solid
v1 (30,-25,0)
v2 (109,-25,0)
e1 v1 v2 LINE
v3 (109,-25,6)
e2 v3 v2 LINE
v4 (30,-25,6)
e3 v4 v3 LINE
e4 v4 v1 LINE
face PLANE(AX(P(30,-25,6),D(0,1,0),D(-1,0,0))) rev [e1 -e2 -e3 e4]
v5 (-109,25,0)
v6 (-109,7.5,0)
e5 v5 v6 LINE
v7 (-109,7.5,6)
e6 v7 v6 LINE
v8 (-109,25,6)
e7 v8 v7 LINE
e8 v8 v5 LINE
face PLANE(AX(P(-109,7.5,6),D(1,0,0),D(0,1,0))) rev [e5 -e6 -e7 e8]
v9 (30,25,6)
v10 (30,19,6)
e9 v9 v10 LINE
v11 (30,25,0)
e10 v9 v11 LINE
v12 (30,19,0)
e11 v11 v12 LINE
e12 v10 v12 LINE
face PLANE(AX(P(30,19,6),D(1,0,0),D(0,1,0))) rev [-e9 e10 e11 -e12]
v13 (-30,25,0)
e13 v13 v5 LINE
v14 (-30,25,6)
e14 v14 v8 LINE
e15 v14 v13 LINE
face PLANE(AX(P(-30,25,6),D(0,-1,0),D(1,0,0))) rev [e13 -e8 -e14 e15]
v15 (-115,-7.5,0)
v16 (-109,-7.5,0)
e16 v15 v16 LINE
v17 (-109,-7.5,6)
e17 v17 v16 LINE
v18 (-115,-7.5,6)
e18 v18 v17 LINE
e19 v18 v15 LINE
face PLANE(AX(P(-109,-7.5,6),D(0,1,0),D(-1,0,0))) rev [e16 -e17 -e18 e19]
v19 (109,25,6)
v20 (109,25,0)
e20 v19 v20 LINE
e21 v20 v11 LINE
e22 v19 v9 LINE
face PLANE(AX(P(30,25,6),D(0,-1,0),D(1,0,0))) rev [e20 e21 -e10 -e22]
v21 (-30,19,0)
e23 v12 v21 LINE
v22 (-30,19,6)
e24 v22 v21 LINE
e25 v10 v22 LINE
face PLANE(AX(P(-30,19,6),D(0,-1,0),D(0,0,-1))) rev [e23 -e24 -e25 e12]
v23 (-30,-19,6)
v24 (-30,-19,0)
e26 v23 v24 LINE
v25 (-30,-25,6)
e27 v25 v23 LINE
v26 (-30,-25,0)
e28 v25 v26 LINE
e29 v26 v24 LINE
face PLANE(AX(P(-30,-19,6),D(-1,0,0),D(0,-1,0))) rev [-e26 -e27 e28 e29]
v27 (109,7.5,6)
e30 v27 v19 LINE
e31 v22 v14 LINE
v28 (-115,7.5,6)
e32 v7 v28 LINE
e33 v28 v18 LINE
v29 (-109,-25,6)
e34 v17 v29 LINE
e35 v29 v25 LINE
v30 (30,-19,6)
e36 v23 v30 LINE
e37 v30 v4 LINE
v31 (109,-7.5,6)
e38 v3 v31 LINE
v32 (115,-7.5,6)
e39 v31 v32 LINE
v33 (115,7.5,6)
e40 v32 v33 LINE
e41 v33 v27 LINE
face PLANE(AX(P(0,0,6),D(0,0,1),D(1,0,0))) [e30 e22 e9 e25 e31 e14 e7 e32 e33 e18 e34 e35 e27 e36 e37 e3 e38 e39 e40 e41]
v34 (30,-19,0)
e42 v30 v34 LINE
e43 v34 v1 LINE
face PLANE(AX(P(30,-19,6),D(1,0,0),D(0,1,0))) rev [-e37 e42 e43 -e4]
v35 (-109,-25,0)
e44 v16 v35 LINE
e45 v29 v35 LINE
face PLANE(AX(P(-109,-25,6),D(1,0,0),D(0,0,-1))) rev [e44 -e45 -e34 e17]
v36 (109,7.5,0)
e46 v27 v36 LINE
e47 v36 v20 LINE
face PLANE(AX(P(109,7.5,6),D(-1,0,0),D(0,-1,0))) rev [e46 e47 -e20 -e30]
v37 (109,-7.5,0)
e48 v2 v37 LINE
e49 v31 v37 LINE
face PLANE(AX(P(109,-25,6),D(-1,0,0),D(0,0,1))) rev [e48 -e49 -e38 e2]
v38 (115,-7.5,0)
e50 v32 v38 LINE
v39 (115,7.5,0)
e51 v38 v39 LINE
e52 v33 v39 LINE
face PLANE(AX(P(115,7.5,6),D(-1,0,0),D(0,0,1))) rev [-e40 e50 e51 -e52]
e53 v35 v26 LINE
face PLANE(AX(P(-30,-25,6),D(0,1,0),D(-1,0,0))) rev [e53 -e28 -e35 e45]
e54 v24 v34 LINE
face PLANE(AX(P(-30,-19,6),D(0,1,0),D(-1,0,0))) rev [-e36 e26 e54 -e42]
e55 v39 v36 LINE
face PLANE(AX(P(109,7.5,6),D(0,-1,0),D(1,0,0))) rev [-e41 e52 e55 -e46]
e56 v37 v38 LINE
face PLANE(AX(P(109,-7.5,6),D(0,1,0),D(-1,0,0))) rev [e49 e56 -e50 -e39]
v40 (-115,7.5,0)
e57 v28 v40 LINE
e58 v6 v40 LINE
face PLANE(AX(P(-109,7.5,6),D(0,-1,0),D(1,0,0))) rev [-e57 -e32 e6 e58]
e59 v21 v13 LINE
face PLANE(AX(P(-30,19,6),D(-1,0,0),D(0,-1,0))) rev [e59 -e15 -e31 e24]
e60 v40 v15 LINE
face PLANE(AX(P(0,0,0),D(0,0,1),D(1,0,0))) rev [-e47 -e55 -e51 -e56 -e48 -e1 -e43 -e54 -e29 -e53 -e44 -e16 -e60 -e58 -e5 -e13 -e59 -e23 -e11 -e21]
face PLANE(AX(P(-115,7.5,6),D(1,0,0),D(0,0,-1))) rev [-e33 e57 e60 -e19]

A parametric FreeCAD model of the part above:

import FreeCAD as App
import Part
import Sketcher
from FreeCAD import Vector
Q = App.Units.Quantity


def add_polygon(sketch, points):
    """Adds a closed chain of lines whose ends are joined by coincident constraints."""
    first, n = sketch.GeometryCount, len(points)
    for a, b in zip(points, points[1:] + points[:1]):
        sketch.addGeometry(Part.LineSegment(App.Vector(*a, 0), App.Vector(*b, 0)), False)
    for i in range(n):
        sketch.addConstraint(Sketcher.Constraint("Coincident", first + i, 2, first + (i + 1) % n, 1))

doc = App.newDocument("Part")
params = doc.addObject("Spreadsheet::Sheet", "Params")
for row, (alias, value) in enumerate([
    ("sketch1_width", "79 mm"),
    ("sketch1_width2", "6 mm"),
    ("sketch1_width3", "60 mm"),
    ("sketch1_height", "15 mm"),
    ("sketch1_height2", "17.5 mm"),
    ("pad1_length", "6 mm"),
], start=1):
    params.set(f"A{row}", alias)
    params.set(f"B{row}", "=" + value)
    params.setAlias(f"B{row}", alias)

body = doc.addObject("PartDesign::Body", "Body")

# Sketch on XY plane
sketch1 = body.newObject("Sketcher::SketchObject", "Sketch")
sketch1.AttachmentSupport = (doc.getObject("XY_Plane"), [""])
sketch1.MapMode = "FlatFace"
add_polygon(sketch1, [(-30, 19), (-30, 25), (-109, 25), (-109, 8), (-115, 8), (-115, -8), (-109, -8), (-109, -25), (-30, -25), (-30, -19), (30, -19), (30, -25), (109, -25), (109, -8), (115, -8), (115, 8), (109, 8), (109, 25), (30, 25), (30, 19)])  # lines 0-19
sketch1.addConstraint([
    Sketcher.Constraint("Vertical", 0),
    Sketcher.Constraint("Horizontal", 1),
    Sketcher.Constraint("Vertical", 2),
    Sketcher.Constraint("Horizontal", 3),
    Sketcher.Constraint("Vertical", 4),
    Sketcher.Constraint("Horizontal", 5),
    Sketcher.Constraint("Vertical", 6),
    Sketcher.Constraint("Horizontal", 7),
    Sketcher.Constraint("Vertical", 8),
    Sketcher.Constraint("Horizontal", 9),
    Sketcher.Constraint("Vertical", 10),
    Sketcher.Constraint("Horizontal", 11),
    Sketcher.Constraint("Vertical", 12),
    Sketcher.Constraint("Horizontal", 13),
    Sketcher.Constraint("Vertical", 14),
    Sketcher.Constraint("Horizontal", 15),
    Sketcher.Constraint("Vertical", 16),
    Sketcher.Constraint("Horizontal", 17),
    Sketcher.Constraint("Vertical", 18),
    Sketcher.Constraint("Horizontal", 19),
    Sketcher.Constraint("Symmetric", 0, 2, 10, 2, -1, 1),
    Sketcher.Constraint("Symmetric", 2, 2, 12, 2, -1, 1),
    Sketcher.Constraint("Symmetric", 4, 2, 14, 2, -1, 1),
    Sketcher.Constraint("Symmetric", 6, 2, 16, 2, -1, 1),
    Sketcher.Constraint("Symmetric", 8, 2, 18, 2, -1, 1),
    Sketcher.Constraint("Symmetric", 7, 2, 10, 2, -2),
    Sketcher.Constraint("Symmetric", 5, 2, 12, 2, -2),
    Sketcher.Constraint("Equal", 15, 0),
    Sketcher.Constraint("DistanceX", 1, 2, 1, 1, Q("79 mm")),
    Sketcher.Constraint("DistanceX", 3, 2, 3, 1, Q("6 mm")),
    Sketcher.Constraint("DistanceX", 9, 1, 9, 2, Q("60 mm")),
    Sketcher.Constraint("DistanceY", 4, 2, 4, 1, Q("15 mm")),
    Sketcher.Constraint("DistanceY", 2, 2, 2, 1, Q("17.5 mm")),
])
sketch1.setExpression("Constraints[48]", "Params.sketch1_width")
sketch1.setExpression("Constraints[49]", "Params.sketch1_width2")
sketch1.setExpression("Constraints[50]", "Params.sketch1_width3")
sketch1.setExpression("Constraints[51]", "Params.sketch1_height")
sketch1.setExpression("Constraints[52]", "Params.sketch1_height2")
pad1 = body.newObject("PartDesign::Pad", "Pad")
pad1.Profile = sketch1
pad1.setExpression("Length", "Params.pad1_length")

doc.recompute()
